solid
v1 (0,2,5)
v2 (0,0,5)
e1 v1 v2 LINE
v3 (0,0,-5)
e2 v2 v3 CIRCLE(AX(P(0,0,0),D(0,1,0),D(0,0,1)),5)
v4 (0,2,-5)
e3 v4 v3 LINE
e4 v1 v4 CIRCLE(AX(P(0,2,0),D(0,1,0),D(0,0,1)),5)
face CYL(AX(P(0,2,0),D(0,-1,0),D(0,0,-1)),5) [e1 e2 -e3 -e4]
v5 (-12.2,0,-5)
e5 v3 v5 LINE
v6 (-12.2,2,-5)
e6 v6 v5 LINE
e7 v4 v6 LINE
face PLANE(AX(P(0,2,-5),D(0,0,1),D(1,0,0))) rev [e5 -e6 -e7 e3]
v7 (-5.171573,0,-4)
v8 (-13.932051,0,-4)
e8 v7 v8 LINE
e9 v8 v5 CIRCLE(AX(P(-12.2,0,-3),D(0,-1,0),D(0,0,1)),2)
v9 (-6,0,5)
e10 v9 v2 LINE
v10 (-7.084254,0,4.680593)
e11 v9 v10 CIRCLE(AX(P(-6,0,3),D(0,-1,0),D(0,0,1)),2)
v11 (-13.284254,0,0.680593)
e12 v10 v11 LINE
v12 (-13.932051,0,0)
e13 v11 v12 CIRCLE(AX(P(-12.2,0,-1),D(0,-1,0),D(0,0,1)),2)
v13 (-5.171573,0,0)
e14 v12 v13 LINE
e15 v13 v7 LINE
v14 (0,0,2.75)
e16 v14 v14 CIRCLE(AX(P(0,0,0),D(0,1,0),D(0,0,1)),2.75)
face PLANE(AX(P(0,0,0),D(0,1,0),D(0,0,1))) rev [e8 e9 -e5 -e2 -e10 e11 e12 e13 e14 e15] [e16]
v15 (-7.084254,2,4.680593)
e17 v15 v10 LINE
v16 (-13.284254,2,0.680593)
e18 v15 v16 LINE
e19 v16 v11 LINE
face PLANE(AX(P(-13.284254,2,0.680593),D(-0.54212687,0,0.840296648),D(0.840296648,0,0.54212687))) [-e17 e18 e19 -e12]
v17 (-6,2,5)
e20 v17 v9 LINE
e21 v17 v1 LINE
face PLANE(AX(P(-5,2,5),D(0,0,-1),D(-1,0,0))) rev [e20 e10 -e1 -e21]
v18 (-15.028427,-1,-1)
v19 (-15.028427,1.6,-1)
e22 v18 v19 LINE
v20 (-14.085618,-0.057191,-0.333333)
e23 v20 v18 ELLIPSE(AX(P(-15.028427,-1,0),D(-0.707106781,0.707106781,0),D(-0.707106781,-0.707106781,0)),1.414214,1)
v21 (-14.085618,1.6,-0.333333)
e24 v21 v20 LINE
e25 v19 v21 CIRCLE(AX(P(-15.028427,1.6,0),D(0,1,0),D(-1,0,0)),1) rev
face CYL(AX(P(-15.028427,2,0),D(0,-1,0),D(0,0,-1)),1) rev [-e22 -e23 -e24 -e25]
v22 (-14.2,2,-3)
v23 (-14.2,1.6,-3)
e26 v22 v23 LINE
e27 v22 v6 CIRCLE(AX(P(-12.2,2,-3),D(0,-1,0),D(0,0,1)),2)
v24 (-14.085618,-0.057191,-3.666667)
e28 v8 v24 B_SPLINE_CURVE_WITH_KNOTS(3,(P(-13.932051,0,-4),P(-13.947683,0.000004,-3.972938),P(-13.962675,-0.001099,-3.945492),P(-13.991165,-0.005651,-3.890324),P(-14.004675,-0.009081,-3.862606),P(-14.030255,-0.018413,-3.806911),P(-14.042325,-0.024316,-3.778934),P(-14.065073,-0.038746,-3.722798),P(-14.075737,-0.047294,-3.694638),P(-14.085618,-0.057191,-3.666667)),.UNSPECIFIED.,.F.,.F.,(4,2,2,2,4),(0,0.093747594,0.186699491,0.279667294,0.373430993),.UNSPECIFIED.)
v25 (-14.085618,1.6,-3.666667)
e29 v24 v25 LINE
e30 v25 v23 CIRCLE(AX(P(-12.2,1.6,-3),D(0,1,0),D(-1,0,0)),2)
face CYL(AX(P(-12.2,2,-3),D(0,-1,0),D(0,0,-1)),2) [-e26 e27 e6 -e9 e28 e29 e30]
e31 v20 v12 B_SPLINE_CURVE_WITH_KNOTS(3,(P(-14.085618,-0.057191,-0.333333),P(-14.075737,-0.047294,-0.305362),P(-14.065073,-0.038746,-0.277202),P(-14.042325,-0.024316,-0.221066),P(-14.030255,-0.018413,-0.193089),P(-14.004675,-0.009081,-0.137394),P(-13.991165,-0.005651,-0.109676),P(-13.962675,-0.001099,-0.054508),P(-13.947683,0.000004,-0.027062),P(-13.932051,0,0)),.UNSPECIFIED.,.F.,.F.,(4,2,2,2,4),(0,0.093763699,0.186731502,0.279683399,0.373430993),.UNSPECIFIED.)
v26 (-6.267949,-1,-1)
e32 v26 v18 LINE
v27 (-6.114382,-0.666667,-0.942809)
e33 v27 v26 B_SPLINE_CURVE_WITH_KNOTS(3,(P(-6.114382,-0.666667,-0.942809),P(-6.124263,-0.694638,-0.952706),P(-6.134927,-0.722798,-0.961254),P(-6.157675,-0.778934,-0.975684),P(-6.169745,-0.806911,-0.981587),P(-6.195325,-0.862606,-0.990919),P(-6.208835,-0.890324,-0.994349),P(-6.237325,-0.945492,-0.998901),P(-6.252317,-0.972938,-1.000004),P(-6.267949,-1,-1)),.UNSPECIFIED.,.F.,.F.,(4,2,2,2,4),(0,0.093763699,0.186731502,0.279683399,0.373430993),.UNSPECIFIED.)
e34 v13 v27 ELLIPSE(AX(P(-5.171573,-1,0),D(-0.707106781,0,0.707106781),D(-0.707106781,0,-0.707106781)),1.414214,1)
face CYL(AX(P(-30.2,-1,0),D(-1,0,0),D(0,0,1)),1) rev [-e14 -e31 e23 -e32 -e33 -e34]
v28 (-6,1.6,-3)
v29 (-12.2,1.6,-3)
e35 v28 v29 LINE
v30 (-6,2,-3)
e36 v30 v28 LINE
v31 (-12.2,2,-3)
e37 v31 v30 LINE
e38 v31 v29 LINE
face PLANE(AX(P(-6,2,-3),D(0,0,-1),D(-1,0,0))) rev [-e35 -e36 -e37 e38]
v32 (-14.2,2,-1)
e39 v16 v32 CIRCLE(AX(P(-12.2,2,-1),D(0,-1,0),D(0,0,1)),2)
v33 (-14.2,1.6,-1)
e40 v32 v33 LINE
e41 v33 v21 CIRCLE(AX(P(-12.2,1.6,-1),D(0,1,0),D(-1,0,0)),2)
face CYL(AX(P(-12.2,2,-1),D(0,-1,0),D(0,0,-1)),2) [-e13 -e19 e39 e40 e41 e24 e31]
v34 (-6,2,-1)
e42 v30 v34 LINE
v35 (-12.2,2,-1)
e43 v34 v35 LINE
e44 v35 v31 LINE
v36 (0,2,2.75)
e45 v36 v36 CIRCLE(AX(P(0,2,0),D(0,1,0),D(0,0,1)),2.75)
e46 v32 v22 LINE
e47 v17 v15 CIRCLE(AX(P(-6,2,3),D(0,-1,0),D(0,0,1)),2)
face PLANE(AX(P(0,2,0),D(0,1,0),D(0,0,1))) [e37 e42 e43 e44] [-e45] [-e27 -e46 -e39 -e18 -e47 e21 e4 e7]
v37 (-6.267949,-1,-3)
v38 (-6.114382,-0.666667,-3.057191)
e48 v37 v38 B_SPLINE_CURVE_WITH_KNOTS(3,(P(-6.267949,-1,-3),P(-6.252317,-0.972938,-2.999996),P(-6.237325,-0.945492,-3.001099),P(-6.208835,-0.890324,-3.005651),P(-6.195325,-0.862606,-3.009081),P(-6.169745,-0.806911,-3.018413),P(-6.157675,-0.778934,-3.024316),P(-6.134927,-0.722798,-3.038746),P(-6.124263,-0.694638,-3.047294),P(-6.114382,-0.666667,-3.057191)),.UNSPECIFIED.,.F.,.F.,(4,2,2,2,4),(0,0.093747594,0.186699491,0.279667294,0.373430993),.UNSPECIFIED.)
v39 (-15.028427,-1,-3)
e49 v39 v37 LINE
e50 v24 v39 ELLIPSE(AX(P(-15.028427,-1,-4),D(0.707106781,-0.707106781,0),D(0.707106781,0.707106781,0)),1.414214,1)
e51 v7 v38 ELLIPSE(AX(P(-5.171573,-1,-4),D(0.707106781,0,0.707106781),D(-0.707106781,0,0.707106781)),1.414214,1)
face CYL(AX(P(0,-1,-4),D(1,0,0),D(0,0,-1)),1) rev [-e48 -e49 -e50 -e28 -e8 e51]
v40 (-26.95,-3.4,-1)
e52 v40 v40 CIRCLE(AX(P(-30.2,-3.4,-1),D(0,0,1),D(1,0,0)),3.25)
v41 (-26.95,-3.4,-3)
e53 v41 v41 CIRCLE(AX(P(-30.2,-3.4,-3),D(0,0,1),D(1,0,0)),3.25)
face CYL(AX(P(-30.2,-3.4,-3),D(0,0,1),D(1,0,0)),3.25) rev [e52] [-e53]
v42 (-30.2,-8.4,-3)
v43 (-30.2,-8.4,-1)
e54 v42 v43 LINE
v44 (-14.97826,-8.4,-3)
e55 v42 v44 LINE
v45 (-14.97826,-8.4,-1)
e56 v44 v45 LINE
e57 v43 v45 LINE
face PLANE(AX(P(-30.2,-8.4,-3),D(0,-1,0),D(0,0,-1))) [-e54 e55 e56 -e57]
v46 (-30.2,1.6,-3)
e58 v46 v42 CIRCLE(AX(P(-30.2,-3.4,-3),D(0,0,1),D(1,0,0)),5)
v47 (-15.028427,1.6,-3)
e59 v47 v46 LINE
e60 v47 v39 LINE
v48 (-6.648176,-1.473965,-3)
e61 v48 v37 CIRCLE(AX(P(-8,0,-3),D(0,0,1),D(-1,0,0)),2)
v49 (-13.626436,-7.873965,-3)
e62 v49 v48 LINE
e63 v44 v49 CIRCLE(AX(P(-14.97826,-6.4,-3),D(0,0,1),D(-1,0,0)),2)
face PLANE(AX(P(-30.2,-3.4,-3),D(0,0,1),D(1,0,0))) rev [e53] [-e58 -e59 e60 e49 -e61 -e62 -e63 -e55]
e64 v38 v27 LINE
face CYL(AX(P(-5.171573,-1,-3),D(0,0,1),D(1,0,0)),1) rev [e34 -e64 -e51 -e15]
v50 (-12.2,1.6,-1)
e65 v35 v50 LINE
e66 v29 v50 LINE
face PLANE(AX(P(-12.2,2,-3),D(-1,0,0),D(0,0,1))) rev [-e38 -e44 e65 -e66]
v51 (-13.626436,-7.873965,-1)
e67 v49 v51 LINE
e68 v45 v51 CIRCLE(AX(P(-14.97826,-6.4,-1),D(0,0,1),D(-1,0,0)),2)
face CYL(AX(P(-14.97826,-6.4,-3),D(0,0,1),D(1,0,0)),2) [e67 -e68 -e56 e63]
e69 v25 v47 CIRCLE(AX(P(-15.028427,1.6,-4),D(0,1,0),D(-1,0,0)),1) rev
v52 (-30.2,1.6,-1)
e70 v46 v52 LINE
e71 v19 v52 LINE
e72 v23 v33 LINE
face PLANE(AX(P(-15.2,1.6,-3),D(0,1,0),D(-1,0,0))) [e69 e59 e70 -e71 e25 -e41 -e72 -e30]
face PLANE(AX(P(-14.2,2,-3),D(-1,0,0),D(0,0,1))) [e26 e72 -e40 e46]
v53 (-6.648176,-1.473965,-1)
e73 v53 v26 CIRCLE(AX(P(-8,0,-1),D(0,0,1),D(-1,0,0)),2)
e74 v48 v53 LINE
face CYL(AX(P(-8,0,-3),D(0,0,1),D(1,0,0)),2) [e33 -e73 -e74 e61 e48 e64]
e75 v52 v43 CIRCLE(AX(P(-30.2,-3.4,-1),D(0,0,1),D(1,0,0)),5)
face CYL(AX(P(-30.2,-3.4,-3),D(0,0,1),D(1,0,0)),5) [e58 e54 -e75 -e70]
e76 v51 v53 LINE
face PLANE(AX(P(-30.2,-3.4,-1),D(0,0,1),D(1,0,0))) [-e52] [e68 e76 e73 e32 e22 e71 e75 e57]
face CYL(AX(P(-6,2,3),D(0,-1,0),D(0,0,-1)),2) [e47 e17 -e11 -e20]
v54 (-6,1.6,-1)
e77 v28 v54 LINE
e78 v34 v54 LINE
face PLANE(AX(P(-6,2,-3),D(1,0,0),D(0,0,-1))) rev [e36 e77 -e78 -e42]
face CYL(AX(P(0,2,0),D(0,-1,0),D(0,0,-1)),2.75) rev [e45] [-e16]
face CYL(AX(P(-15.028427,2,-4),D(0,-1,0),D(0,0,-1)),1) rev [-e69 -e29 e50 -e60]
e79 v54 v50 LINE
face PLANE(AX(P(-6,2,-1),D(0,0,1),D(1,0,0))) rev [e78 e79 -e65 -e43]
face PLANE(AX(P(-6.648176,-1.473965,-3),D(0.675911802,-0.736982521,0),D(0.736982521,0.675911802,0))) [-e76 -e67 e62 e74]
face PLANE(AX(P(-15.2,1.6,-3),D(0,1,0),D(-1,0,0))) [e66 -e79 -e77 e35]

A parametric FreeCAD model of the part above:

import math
import FreeCAD as App
import Part
import Sketcher
from FreeCAD import Vector


def edges_at(feature, points):
    """Names of the edges that pass closest to the given points."""
    edges = feature.Shape.Edges
    near = lambda p: min(range(len(edges)), key=lambda i: edges[i].distToShape(Part.Vertex(*p))[0])
    return sorted({f"Edge{near(p) + 1}" for p in points})


def add_polygon(sketch, points):
    """Adds a closed chain of lines whose ends are joined by coincident constraints."""
    first, n = sketch.GeometryCount, len(points)
    for a, b in zip(points, points[1:] + points[:1]):
        sketch.addGeometry(Part.LineSegment(App.Vector(*a, 0), App.Vector(*b, 0)), False)
    for i in range(n):
        sketch.addConstraint(Sketcher.Constraint("Coincident", first + i, 2, first + (i + 1) % n, 1))

doc = App.newDocument("Part")
body = doc.addObject("PartDesign::Body", "Body")

sketch1 = doc.addObject("Sketcher::SketchObject", "Sketch")
body.addObject(sketch1)
sketch1.AttachmentSupport = (doc.XZ_Plane, [""])
sketch1.MapMode = "FlatFace"
sketch1.addGeometry([
    Part.LineSegment(Vector(0, -5, 0), Vector(-5, -5, 0)),
    Part.LineSegment(Vector(-5, -5, 0), Vector(-5, 5, 0)),
    Part.LineSegment(Vector(-5, 5, 0), Vector(0, 5, 0)),
    Part.ArcOfCircle(Part.Circle(Vector(0, 0, 0), Vector(0, 0, 1), 5), math.radians(-90), math.radians(90)),
    Part.Circle(Vector(0, 0, 0), Vector(0, 0, 1), 2.8),
], False)
sketch1.addConstraint([
    Sketcher.Constraint("Coincident", 0, 2, 1, 1),
    Sketcher.Constraint("Coincident", 1, 2, 2, 1),
    Sketcher.Constraint("Tangent", 2, 2, 3, 2),
    Sketcher.Constraint("Tangent", 3, 1, 0, 1),
    Sketcher.Constraint("Horizontal", 0),
    Sketcher.Constraint("Vertical", 1),
    Sketcher.Constraint("Horizontal", 2),
    Sketcher.Constraint("Coincident", 3, 3, -1, 1),
    Sketcher.Constraint("Coincident", 4, 3, -1, 1),
    Sketcher.Constraint("Radius", 3, 5.0),
    Sketcher.Constraint("Diameter", 4, 5.5),
    Sketcher.Constraint("DistanceX", 0, 2, 0, 1, 5.0),
])
pad1 = doc.addObject("PartDesign::Pad", "Pad")
body.addObject(pad1)
pad1.Profile = sketch1
pad1.Length = 2
pad1.Reversed = True

sketch2 = doc.addObject("Sketcher::SketchObject", "Sketch001")
body.addObject(sketch2)
sketch2.AttachmentSupport = (doc.XZ_Plane, [""])
sketch2.MapMode = "FlatFace"
sketch2.addGeometry(Part.LineSegment(Vector(-12.2, -5, 0), Vector(-5, -5, 0)), False)
sketch2.addGeometry(Part.LineSegment(Vector(-5, -5, 0), Vector(-5, 5, 0)), False)
sketch2.addGeometry(Part.LineSegment(Vector(-5, 5, 0), Vector(-6, 5, 0)), False)
sketch2.addGeometry(Part.ArcOfCircle(Part.Circle(Vector(-6, 3, 0), Vector(0, 0, 1), 2), math.radians(90), math.radians(123)), False)
sketch2.addGeometry(Part.LineSegment(Vector(-7.1, 4.7, 0), Vector(-13.3, 0.7, 0)), False)
sketch2.addGeometry(Part.ArcOfCircle(Part.Circle(Vector(-12.2, -1, 0), Vector(0, 0, 1), 2), math.radians(123), math.radians(180)), False)
sketch2.addGeometry(Part.LineSegment(Vector(-14.2, -1, 0), Vector(-14.2, -3, 0)), False)
sketch2.addGeometry(Part.ArcOfCircle(Part.Circle(Vector(-12.2, -3, 0), Vector(0, 0, 1), 2), math.radians(-180), math.radians(-90)), False)
add_polygon(sketch2, [(-12.2, -3), (-12.2, -1), (-6, -1), (-6, -3)])
sketch2.addConstraint([
    Sketcher.Constraint("Coincident", 0, 2, 1, 1),
    Sketcher.Constraint("Coincident", 1, 2, 2, 1),
    Sketcher.Constraint("Tangent", 2, 2, 3, 1),
    Sketcher.Constraint("Tangent", 3, 2, 4, 1),
    Sketcher.Constraint("Tangent", 4, 2, 5, 1),
    Sketcher.Constraint("Tangent", 5, 2, 6, 1),
    Sketcher.Constraint("Tangent", 6, 2, 7, 1),
    Sketcher.Constraint("Tangent", 7, 2, 0, 1),
    Sketcher.Constraint("Horizontal", 0),
    Sketcher.Constraint("Vertical", 1),
    Sketcher.Constraint("Horizontal", 2),
    Sketcher.Constraint("Vertical", 6),
    Sketcher.Constraint("Vertical", 8),
    Sketcher.Constraint("Horizontal", 9),
    Sketcher.Constraint("Vertical", 10),
    Sketcher.Constraint("Horizontal", 11),
    Sketcher.Constraint("Coincident", 8, 2, 5, 3),
    Sketcher.Constraint("Coincident", 11, 2, 7, 3),
    Sketcher.Constraint("Equal", 3, 5),
    Sketcher.Constraint("Vertical", 2, 2, 9, 2),
    Sketcher.Constraint("Radius", 3, 2.0),
    Sketcher.Constraint("DistanceX", 2, 2, 2, 1, 1.0),
    Sketcher.Constraint("DistanceY", 1, 1, 1, 2, 10.0),
    Sketcher.Constraint("DistanceY", 6, 2, 6, 1, 2.0),
    Sketcher.Constraint("DistanceX", 0, 1, 0, 2, 7.2),
    Sketcher.Constraint("DistanceX", 3, 3, -1, 1, 6.0),
    Sketcher.Constraint("DistanceY", -1, 1, 3, 3, 3.0),
])
pad2 = doc.addObject("PartDesign::Pad", "Pad001")
body.addObject(pad2)
pad2.Profile = sketch2
pad2.Length = 2
pad2.Reversed = True
body2 = doc.addObject("PartDesign::Body", "Body001")

sketch3 = doc.addObject("Sketcher::SketchObject", "Sketch002")
body2.addObject(sketch3)
sketch3.AttachmentSupport = (doc.getObject("XY_Plane001"), [""])
sketch3.MapMode = "FlatFace"
sketch3.AttachmentOffset = App.Placement(Vector(0, 0, -1), App.Rotation())
sketch3.addGeometry([
    Part.LineSegment(Vector(-15.2, -8.4, 0), Vector(-15.2, 1.6, 0)),
    Part.LineSegment(Vector(-15.2, 1.6, 0), Vector(-30.2, 1.6, 0)),
    Part.ArcOfCircle(Part.Circle(Vector(-30.2, -3.4, 0), Vector(0, 0, 1), 5), math.radians(90), math.radians(270)),
    Part.LineSegment(Vector(-30.2, -8.4, 0), Vector(-15.2, -8.4, 0)),
    Part.Circle(Vector(-30.2, -3.4, 0), Vector(0, 0, 1), 3.2),
], False)
sketch3.addConstraint([
    Sketcher.Constraint("Coincident", 0, 2, 1, 1),
    Sketcher.Constraint("Tangent", 1, 2, 2, 1),
    Sketcher.Constraint("Tangent", 2, 2, 3, 1),
    Sketcher.Constraint("Coincident", 3, 2, 0, 1),
    Sketcher.Constraint("Vertical", 0),
    Sketcher.Constraint("Horizontal", 1),
    Sketcher.Constraint("Horizontal", 3),
    Sketcher.Constraint("Coincident", 4, 3, 2, 3),
    Sketcher.Constraint("Radius", 2, 5.0),
    Sketcher.Constraint("Diameter", 4, 6.5),
    Sketcher.Constraint("DistanceX", 1, 2, 1, 1, 15.0),
    Sketcher.Constraint("DistanceX", 2, 3, -1, 1, 30.2),
    Sketcher.Constraint("DistanceY", 2, 3, -1, 1, 3.4),
])
pad3 = doc.addObject("PartDesign::Pad", "Pad002")
body2.addObject(pad3)
pad3.Profile = sketch3
pad3.Length = 2
pad3.Reversed = True
body.AllowCompound = True
doc.recompute()

boolean = doc.addObject("PartDesign::Boolean", "Boolean")
body.addObject(boolean)
boolean.Type = "Fuse"
boolean.addObjects([body2])

sketch4 = doc.addObject("Sketcher::SketchObject", "Sketch003")
body.addObject(sketch4)
sketch4.AttachmentSupport = (doc.XY_Plane, [""])
sketch4.MapMode = "FlatFace"
sketch4.AttachmentOffset = App.Placement(Vector(0, 0, -1), App.Rotation())
sketch4.addGeometry([
    Part.LineSegment(Vector(-13.63, -7.87, 0), Vector(-6.65, -1.47, 0)),
    Part.ArcOfCircle(Part.Circle(Vector(-8, 0, 0), Vector(0, 0, 1), 2), math.radians(-47), math.radians(0)),
    Part.LineSegment(Vector(-6, 0, 0), Vector(-6, 1.6, 0)),
    Part.LineSegment(Vector(-6, 1.6, 0), Vector(-15.2, 1.6, 0)),
    Part.LineSegment(Vector(-15.2, 1.6, 0), Vector(-15.2, -8.4, 0)),
    Part.LineSegment(Vector(-15.2, -8.4, 0), Vector(-14.98, -8.4, 0)),
    Part.ArcOfCircle(Part.Circle(Vector(-14.98, -6.4, 0), Vector(0, 0, 1), 2), math.radians(-90), math.radians(-47)),
], False)
sketch4.addConstraint([
    Sketcher.Constraint("Tangent", 0, 2, 1, 1),
    Sketcher.Constraint("Tangent", 1, 2, 2, 1),
    Sketcher.Constraint("Coincident", 2, 2, 3, 1),
    Sketcher.Constraint("Coincident", 3, 2, 4, 1),
    Sketcher.Constraint("Coincident", 4, 2, 5, 1),
    Sketcher.Constraint("Tangent", 5, 2, 6, 1),
    Sketcher.Constraint("Tangent", 6, 2, 0, 1),
    Sketcher.Constraint("Vertical", 2),
    Sketcher.Constraint("Horizontal", 3),
    Sketcher.Constraint("Vertical", 4),
    Sketcher.Constraint("Horizontal", 5),
    Sketcher.Constraint("Equal", 1, 6),
    Sketcher.Constraint("PointOnObject", 1, 3, -1),
    Sketcher.Constraint("Radius", 1, 2.0),
    Sketcher.Constraint("DistanceY", 4, 2, 4, 1, 10.0),
    Sketcher.Constraint("DistanceX", 3, 2, 3, 1, 9.2),
    Sketcher.Constraint("DistanceY", 2, 1, 2, 2, 1.6),
    Sketcher.Constraint("DistanceX", 1, 3, -1, 1, 8.0),
    Sketcher.Constraint("DistanceX", 5, 1, 5, 2, 0.22174),
])
pad4 = doc.addObject("PartDesign::Pad", "Pad003")
body.addObject(pad4)
pad4.Profile = sketch4
pad4.Length = 2
pad4.Reversed = True
doc.recompute()

fillet = doc.addObject("PartDesign::Fillet", "Fillet")
body.addObject(fillet)
fillet.Base = (pad4, edges_at(pad4, [
    (-6, 0, -2),
    (-14.2, 0.8, -1),
    (-14.2, 0.8, -3),
    (-10.1, 0, -3),
    (-10.1, 0, -1),
]))
fillet.Radius = 1

doc.recompute()
